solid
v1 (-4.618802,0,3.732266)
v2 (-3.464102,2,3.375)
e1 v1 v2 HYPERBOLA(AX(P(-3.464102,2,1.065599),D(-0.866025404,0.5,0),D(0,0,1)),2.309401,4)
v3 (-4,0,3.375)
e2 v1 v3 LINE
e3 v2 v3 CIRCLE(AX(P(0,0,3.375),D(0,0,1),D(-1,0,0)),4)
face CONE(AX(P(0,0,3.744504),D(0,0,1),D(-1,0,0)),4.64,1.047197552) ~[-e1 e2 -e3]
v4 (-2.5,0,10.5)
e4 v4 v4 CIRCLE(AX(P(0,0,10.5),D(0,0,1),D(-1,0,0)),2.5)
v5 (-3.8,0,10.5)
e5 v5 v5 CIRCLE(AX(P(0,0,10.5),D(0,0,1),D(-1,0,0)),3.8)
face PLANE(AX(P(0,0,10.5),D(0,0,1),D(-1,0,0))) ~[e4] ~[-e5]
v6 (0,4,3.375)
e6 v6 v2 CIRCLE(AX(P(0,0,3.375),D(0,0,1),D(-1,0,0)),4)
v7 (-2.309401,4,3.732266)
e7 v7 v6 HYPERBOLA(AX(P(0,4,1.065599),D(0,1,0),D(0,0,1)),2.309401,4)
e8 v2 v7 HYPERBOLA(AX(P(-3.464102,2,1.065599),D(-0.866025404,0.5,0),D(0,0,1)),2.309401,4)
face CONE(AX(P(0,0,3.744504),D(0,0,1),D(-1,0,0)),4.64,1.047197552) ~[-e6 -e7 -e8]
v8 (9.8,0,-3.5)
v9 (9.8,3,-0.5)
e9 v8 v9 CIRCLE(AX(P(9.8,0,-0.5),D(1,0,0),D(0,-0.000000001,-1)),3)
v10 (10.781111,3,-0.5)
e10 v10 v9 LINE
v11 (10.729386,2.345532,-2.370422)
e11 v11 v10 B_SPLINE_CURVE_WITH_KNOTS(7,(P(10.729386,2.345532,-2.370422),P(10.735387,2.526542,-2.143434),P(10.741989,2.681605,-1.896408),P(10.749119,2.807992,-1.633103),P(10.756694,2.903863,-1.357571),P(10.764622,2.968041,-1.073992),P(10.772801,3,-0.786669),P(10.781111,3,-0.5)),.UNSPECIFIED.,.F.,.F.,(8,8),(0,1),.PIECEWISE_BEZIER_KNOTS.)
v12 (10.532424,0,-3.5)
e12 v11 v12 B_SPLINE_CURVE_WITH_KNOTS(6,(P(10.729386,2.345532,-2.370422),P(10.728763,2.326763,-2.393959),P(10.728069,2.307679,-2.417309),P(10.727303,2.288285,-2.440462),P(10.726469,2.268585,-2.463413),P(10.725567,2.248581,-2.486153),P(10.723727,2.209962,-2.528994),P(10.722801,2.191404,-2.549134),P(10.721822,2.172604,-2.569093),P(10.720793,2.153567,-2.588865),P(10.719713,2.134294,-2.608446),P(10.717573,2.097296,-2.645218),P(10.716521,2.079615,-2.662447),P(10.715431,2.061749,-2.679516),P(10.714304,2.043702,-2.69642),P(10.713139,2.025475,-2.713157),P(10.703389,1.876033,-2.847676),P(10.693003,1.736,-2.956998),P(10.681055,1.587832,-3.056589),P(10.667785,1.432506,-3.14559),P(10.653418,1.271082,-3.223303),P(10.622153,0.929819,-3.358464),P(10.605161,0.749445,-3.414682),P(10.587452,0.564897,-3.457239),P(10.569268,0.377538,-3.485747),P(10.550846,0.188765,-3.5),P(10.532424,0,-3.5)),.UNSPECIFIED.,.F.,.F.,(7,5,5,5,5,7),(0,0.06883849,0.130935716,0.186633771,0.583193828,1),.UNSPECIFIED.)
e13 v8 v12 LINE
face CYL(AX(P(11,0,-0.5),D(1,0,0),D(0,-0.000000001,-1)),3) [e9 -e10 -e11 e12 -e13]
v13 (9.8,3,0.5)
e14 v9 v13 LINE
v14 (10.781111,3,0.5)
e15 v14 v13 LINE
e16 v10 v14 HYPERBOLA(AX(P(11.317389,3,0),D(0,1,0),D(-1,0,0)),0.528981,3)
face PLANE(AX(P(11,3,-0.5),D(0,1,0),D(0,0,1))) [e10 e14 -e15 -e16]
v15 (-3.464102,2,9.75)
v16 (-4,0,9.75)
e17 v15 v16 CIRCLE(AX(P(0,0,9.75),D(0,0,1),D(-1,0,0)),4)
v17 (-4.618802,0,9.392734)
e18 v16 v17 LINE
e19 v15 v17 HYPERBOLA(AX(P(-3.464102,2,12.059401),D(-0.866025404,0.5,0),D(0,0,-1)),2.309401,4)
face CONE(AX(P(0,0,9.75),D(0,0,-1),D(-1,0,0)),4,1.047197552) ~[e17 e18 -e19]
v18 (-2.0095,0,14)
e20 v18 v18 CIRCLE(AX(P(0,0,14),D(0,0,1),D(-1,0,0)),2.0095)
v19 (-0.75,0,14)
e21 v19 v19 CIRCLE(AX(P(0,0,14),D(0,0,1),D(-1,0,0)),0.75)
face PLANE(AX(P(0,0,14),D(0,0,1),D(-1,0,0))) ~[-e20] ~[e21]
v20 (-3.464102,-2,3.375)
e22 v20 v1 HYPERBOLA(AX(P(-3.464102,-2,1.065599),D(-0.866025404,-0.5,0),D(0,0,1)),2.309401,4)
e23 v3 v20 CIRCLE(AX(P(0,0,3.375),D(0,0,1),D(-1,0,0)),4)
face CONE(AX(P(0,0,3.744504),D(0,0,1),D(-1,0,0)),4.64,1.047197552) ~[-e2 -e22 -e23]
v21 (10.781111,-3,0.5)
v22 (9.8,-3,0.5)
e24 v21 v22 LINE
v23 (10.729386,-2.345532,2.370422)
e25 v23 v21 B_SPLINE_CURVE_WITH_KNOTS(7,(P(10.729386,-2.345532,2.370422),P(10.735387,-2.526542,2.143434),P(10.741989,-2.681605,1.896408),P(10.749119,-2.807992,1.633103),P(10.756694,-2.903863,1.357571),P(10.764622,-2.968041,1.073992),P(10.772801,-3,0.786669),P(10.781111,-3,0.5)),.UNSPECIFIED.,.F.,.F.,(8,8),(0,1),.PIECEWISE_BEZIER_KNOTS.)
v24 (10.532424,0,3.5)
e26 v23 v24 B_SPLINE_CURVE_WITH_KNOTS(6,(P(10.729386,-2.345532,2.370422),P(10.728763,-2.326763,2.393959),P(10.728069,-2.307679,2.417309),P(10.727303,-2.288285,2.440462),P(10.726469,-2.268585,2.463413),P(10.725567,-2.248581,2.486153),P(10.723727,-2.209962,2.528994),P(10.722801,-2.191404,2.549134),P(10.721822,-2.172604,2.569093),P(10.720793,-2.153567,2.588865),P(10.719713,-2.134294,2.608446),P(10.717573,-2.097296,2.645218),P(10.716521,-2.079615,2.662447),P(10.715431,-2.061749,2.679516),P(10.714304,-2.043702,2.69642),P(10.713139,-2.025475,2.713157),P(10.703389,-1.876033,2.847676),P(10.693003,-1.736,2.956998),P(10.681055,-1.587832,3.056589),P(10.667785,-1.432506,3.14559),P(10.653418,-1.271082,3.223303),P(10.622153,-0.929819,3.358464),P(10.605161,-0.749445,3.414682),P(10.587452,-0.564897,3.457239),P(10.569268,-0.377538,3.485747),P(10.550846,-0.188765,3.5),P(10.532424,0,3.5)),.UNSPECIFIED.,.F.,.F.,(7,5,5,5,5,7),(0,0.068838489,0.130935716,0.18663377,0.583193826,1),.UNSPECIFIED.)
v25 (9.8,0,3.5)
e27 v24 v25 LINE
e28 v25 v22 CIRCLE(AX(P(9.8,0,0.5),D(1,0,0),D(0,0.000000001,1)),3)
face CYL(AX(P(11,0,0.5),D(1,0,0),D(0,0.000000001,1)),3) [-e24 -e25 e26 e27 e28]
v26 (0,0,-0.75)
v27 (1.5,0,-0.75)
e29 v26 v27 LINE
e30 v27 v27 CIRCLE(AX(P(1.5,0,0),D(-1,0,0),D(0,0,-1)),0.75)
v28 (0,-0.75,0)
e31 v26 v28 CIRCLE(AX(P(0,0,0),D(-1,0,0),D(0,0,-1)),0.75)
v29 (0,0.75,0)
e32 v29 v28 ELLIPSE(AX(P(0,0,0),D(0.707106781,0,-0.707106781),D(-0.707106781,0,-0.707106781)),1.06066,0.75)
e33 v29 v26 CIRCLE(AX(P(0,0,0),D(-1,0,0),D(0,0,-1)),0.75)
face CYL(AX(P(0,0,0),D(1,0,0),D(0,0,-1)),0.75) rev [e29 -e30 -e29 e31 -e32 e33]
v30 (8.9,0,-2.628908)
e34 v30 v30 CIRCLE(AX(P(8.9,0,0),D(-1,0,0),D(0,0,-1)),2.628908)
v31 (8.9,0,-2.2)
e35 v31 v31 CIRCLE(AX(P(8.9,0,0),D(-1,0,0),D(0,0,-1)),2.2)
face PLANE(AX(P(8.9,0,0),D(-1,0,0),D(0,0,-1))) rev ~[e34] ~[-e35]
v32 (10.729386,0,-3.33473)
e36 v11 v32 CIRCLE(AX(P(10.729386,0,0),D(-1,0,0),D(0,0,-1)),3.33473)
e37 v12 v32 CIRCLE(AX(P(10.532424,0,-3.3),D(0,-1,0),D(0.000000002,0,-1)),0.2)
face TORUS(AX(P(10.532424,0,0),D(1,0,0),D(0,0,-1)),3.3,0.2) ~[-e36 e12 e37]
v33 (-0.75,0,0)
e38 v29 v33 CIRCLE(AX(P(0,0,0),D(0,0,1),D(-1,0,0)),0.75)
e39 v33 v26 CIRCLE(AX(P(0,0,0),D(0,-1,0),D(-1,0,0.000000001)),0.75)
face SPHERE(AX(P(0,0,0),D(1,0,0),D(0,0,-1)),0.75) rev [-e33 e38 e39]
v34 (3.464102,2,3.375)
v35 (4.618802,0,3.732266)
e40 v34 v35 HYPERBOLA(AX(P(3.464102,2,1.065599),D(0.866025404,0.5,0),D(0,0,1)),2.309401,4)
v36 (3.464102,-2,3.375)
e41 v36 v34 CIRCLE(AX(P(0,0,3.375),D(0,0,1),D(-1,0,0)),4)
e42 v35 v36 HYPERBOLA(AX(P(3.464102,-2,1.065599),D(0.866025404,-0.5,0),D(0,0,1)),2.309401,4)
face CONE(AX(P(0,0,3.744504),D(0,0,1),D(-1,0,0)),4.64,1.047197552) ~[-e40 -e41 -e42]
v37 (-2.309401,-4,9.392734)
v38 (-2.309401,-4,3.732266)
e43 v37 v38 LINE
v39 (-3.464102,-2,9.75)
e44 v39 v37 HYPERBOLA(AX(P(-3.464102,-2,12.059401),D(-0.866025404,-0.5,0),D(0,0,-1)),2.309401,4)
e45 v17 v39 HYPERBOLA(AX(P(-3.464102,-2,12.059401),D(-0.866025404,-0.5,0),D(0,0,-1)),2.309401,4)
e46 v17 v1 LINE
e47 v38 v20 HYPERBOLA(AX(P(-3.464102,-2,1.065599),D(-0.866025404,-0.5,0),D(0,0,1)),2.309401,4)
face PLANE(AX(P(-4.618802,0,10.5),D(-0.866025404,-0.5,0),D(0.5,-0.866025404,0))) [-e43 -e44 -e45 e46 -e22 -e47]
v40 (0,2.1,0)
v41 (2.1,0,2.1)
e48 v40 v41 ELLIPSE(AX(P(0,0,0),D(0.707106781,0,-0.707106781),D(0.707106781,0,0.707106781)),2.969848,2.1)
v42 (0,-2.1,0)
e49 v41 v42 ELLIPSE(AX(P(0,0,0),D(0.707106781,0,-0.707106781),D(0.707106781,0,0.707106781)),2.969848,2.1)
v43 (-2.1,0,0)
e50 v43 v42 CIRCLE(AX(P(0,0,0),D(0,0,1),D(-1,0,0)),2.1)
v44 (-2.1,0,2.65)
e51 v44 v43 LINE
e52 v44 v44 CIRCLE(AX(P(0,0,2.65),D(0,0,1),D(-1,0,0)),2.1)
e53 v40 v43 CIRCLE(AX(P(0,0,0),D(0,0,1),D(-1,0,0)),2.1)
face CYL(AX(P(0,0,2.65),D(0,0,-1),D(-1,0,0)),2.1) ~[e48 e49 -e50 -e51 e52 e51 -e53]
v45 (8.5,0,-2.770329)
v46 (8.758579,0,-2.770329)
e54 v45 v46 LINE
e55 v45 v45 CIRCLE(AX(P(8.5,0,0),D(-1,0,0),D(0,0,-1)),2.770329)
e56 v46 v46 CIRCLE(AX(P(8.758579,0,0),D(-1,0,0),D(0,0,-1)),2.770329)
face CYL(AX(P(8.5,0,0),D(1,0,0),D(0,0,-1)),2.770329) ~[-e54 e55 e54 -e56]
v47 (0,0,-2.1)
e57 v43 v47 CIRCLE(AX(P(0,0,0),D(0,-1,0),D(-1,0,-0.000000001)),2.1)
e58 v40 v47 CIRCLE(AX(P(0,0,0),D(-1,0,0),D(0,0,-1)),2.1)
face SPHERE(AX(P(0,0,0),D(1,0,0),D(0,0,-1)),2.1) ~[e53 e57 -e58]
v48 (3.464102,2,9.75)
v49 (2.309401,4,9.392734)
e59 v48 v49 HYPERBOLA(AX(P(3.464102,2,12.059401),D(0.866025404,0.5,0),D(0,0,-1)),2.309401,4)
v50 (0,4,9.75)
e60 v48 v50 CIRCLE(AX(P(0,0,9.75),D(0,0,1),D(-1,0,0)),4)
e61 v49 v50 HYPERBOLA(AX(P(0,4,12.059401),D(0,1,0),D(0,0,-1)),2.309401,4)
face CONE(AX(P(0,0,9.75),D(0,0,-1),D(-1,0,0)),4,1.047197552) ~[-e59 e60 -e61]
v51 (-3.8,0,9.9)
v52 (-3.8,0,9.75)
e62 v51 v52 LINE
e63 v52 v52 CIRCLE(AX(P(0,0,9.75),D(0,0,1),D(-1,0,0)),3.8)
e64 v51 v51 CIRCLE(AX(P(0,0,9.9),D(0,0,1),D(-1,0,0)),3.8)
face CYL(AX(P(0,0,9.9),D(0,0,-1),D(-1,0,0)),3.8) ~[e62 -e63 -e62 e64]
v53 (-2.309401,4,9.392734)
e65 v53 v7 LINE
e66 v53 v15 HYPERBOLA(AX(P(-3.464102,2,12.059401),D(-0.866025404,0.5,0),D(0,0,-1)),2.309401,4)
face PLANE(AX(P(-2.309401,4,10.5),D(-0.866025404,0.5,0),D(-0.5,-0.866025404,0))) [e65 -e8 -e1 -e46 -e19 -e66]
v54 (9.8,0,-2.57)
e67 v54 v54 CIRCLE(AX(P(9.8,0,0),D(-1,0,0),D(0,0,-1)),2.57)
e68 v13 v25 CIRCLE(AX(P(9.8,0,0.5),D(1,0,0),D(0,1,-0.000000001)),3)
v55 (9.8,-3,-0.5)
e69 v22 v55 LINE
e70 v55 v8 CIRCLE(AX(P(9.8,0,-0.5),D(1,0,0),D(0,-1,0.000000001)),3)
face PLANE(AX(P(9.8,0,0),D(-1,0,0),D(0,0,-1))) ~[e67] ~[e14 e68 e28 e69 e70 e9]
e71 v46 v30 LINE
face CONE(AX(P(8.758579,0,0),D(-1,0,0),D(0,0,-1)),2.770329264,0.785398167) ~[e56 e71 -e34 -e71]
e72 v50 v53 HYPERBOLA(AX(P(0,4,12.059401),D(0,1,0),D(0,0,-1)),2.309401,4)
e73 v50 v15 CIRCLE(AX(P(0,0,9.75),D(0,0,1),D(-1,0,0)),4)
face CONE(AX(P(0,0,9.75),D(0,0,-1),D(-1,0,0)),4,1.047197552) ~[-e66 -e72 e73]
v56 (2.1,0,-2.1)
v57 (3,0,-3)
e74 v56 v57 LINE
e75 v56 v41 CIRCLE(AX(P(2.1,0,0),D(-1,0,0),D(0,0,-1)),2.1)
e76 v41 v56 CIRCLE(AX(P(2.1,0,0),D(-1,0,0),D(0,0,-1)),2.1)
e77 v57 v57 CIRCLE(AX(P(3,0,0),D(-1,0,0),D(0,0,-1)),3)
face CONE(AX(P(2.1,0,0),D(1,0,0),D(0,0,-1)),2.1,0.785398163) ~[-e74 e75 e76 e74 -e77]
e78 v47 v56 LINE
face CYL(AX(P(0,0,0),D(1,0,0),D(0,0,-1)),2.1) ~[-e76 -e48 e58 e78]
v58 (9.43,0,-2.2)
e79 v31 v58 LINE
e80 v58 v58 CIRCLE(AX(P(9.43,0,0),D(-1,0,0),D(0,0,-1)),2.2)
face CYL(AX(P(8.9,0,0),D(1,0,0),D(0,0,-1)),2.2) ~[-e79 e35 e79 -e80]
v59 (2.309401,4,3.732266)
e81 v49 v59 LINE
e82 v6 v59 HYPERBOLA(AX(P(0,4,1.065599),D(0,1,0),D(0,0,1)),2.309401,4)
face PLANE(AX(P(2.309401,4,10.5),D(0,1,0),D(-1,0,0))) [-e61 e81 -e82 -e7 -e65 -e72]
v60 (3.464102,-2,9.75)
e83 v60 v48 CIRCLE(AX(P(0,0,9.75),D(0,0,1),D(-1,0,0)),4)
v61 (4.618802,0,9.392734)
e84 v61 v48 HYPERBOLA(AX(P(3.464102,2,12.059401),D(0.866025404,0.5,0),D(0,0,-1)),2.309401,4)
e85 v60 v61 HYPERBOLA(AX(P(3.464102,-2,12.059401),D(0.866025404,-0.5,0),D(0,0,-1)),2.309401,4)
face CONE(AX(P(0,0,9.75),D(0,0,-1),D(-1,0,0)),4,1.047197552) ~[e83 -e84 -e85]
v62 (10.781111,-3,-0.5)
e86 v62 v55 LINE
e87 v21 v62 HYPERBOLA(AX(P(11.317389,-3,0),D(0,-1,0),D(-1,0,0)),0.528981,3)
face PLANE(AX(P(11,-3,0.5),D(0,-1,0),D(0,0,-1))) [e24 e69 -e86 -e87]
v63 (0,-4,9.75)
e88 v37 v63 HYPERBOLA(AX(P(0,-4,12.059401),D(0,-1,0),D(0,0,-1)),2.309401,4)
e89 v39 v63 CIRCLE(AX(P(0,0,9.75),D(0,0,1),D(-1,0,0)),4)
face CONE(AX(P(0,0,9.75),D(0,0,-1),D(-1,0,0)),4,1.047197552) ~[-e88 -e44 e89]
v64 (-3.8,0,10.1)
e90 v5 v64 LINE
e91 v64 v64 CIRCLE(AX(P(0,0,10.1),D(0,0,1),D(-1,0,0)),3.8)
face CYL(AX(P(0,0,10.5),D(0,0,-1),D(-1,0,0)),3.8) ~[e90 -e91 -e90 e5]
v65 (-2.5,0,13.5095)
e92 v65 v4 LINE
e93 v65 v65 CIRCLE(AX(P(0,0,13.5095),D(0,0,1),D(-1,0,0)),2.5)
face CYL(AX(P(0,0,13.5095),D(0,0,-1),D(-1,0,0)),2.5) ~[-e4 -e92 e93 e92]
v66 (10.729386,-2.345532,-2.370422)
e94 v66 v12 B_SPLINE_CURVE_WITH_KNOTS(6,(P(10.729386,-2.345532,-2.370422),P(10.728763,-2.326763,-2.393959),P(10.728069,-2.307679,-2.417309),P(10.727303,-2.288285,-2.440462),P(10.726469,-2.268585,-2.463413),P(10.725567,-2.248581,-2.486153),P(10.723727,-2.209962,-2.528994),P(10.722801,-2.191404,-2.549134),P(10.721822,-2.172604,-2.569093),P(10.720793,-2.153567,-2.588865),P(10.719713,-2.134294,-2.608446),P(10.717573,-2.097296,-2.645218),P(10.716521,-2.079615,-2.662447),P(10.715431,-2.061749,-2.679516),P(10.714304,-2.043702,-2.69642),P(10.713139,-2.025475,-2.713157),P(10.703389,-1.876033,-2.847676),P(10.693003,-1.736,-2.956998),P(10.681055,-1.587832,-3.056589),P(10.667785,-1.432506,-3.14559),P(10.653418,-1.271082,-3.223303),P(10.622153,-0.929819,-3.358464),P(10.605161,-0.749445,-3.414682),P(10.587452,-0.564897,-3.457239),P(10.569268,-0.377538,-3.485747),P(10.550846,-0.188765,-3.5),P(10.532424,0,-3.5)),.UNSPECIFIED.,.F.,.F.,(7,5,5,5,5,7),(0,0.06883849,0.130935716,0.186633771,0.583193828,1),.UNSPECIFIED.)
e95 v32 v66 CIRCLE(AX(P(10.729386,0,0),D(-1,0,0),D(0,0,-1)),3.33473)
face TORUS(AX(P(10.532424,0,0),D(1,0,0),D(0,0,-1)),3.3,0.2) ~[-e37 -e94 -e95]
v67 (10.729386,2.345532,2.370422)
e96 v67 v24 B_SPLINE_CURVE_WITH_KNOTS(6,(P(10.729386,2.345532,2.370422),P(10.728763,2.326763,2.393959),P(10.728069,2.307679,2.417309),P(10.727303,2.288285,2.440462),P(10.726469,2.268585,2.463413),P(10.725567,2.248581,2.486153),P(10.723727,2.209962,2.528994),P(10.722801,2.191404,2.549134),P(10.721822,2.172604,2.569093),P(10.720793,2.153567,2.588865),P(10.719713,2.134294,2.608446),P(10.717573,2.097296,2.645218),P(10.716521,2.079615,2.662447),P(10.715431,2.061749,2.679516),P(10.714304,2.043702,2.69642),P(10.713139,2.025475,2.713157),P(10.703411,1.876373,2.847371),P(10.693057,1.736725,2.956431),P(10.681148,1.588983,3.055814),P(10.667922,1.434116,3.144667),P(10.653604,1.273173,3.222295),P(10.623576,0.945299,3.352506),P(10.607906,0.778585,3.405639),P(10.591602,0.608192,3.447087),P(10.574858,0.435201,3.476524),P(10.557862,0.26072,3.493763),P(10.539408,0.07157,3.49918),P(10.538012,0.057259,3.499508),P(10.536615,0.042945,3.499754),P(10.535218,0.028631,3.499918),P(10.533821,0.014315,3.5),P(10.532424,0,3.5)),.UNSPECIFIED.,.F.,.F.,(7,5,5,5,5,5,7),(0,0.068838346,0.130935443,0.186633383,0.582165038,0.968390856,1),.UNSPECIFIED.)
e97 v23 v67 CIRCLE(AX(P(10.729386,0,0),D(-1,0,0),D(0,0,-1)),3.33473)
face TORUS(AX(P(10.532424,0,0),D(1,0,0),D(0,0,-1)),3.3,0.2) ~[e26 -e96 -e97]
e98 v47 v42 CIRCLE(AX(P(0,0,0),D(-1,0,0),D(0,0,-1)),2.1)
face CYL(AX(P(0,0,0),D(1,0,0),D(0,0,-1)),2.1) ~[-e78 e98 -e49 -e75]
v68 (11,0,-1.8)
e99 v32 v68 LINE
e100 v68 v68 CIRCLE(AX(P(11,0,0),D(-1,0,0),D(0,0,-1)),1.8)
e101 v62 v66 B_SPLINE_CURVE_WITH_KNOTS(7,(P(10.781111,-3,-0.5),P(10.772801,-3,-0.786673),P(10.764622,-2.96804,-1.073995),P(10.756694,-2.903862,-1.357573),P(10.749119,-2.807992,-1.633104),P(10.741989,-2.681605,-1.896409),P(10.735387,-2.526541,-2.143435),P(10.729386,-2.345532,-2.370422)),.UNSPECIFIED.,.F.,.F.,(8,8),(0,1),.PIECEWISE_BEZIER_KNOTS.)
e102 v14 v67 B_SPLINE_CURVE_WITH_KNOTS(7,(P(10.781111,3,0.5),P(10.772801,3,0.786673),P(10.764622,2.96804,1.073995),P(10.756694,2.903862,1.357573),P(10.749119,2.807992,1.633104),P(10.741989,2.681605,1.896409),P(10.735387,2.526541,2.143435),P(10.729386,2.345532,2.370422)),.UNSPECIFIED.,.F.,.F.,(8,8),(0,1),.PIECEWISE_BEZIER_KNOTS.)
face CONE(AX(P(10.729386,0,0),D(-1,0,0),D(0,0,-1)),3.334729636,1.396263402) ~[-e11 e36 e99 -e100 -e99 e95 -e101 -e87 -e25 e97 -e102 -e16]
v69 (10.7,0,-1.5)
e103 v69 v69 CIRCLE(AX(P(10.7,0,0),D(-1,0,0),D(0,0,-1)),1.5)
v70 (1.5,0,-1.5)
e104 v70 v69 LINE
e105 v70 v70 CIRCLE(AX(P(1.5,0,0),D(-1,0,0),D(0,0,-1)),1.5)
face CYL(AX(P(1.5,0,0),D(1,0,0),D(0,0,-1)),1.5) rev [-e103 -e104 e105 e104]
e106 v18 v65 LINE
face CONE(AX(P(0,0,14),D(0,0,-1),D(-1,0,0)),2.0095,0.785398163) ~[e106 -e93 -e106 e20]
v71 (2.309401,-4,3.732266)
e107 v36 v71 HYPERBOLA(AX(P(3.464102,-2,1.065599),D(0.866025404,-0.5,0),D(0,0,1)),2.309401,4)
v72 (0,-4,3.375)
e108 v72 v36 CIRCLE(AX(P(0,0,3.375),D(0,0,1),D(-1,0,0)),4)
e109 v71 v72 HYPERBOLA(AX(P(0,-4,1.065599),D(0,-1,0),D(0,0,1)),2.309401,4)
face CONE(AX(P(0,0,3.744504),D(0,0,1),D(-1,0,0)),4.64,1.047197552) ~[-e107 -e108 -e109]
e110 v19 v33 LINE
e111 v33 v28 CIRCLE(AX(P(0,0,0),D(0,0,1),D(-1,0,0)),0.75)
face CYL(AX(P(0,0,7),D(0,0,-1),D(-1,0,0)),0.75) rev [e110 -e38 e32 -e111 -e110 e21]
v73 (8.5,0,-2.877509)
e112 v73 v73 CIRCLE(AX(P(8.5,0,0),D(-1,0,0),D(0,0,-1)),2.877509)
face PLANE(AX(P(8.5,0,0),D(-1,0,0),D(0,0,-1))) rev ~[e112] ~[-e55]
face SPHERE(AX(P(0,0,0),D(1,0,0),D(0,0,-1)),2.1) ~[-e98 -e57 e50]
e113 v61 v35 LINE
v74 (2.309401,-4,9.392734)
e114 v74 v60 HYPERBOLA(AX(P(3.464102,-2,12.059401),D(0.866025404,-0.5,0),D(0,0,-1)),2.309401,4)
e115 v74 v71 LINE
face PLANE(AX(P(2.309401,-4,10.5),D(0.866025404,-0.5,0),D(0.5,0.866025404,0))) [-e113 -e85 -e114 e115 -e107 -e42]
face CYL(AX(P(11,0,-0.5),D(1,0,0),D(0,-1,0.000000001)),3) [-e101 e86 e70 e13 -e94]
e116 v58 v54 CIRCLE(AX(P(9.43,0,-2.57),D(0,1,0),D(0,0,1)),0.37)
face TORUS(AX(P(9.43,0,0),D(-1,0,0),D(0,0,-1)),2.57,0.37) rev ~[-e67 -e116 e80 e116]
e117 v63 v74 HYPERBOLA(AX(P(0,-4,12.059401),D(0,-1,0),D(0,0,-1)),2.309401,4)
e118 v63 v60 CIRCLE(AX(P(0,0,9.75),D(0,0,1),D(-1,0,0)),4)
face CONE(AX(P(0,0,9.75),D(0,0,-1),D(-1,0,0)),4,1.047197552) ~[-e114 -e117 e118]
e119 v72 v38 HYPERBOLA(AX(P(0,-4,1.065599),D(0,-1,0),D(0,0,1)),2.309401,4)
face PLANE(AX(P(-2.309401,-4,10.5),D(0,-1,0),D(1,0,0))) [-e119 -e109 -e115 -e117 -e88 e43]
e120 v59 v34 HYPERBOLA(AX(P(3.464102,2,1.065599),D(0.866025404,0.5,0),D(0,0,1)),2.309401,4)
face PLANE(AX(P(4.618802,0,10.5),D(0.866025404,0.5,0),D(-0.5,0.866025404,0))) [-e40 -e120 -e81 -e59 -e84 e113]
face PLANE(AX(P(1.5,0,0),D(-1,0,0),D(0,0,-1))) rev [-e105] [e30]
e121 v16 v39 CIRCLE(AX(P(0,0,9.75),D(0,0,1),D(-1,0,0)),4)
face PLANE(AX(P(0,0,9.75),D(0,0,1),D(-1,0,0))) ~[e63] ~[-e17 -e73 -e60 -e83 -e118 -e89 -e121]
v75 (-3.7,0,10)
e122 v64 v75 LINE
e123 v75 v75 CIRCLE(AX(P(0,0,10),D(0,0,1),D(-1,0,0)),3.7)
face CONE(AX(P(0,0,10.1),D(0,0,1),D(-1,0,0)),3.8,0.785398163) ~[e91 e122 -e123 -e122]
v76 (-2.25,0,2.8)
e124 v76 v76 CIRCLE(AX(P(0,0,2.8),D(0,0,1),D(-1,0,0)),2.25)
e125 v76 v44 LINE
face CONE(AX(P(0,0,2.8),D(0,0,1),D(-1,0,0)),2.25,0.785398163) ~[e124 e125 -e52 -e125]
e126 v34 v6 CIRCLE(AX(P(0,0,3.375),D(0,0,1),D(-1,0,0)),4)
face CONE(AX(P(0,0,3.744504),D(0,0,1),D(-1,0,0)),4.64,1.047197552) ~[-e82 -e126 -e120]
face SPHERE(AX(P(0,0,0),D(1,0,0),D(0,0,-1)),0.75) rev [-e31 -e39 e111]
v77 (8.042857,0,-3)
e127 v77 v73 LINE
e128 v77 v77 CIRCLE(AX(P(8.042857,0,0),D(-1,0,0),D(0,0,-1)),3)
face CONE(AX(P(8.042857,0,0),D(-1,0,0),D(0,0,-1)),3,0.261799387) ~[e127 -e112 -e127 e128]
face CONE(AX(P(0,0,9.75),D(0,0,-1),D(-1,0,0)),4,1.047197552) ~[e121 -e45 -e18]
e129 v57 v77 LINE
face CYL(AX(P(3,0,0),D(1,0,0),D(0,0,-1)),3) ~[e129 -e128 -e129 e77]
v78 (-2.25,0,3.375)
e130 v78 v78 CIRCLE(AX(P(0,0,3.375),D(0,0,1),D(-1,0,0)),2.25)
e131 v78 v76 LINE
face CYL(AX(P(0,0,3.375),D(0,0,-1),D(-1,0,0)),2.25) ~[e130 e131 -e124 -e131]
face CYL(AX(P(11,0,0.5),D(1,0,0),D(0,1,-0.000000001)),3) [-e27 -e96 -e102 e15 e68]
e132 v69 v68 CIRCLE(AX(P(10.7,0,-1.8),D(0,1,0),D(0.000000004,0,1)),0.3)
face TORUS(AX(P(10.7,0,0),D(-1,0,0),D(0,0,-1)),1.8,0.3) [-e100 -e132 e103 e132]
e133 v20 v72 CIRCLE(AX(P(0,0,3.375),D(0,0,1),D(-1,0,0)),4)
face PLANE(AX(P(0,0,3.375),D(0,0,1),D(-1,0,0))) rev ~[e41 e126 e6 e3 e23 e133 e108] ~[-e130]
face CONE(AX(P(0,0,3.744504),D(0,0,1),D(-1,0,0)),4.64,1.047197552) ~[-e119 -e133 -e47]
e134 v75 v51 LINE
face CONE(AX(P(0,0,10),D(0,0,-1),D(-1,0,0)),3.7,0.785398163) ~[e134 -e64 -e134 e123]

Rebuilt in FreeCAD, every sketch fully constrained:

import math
import FreeCAD as App
import Part
import Sketcher
Q = App.Units.Quantity

doc = App.newDocument("Part")
body = doc.addObject("PartDesign::Body", "Body")

sketch1 = doc.addObject("Sketcher::SketchObject", "Sketch")
body.addObject(sketch1)
sketch1.AttachmentSupport = (doc.XY_Plane, [""])
sketch1.MapMode = "FlatFace"
sketch1.addGeometry(Part.LineSegment(App.Vector(2.1, 2.1, 0), App.Vector(0, 2.1, 0)), False)
sketch1.addGeometry(Part.ArcOfCircle(Part.Circle(App.Vector(0, 0, 0), App.Vector(0, 0, 1), 2.1), math.radians(90), math.radians(180)), False)
sketch1.addGeometry(Part.LineSegment(App.Vector(-2.1, 0, 0), App.Vector(11, 0, 0)), False)
sketch1.addGeometry(Part.LineSegment(App.Vector(11, 0, 0), App.Vector(11, 1.8, 0)), False)
sketch1.addGeometry(Part.LineSegment(App.Vector(11, 1.8, 0), App.Vector(10.73, 3.33, 0)), False)
sketch1.addGeometry(Part.ArcOfCircle(Part.Circle(App.Vector(10.53, 3.3, 0), App.Vector(0, 0, 1), 0.2), math.radians(10), math.radians(90)), False)
sketch1.addGeometry(Part.LineSegment(App.Vector(10.53, 3.5, 0), App.Vector(9.8, 3.5, 0)), False)
sketch1.addGeometry(Part.LineSegment(App.Vector(9.8, 3.5, 0), App.Vector(9.8, 2.57, 0)), False)
sketch1.addGeometry(Part.ArcOfCircle(Part.Circle(App.Vector(9.43, 2.57, 0), App.Vector(0, 0, 1), 0.37), math.radians(-90), math.radians(0)), False)
sketch1.addGeometry(Part.LineSegment(App.Vector(9.43, 2.2, 0), App.Vector(8.9, 2.2, 0)), False)
sketch1.addGeometry(Part.LineSegment(App.Vector(8.9, 2.2, 0), App.Vector(8.9, 2.63, 0)), False)
sketch1.addGeometry(Part.LineSegment(App.Vector(8.9, 2.63, 0), App.Vector(8.76, 2.77, 0)), False)
sketch1.addGeometry(Part.LineSegment(App.Vector(8.76, 2.77, 0), App.Vector(8.5, 2.77, 0)), False)
sketch1.addGeometry(Part.LineSegment(App.Vector(8.5, 2.77, 0), App.Vector(8.5, 2.88, 0)), False)
sketch1.addGeometry(Part.LineSegment(App.Vector(8.5, 2.88, 0), App.Vector(8.04, 3, 0)), False)
sketch1.addGeometry(Part.LineSegment(App.Vector(8.04, 3, 0), App.Vector(3, 3, 0)), False)
sketch1.addGeometry(Part.LineSegment(App.Vector(3, 3, 0), App.Vector(2.1, 2.1, 0)), False)
sketch1.addConstraint(Sketcher.Constraint("Tangent", 0, 2, 1, 1))
sketch1.addConstraint(Sketcher.Constraint("Coincident", 1, 2, 2, 1))
sketch1.addConstraint(Sketcher.Constraint("Coincident", 2, 2, 3, 1))
sketch1.addConstraint(Sketcher.Constraint("Coincident", 3, 2, 4, 1))
sketch1.addConstraint(Sketcher.Constraint("Tangent", 4, 2, 5, 1))
sketch1.addConstraint(Sketcher.Constraint("Tangent", 5, 2, 6, 1))
sketch1.addConstraint(Sketcher.Constraint("Coincident", 6, 2, 7, 1))
sketch1.addConstraint(Sketcher.Constraint("Tangent", 7, 2, 8, 2))
sketch1.addConstraint(Sketcher.Constraint("Tangent", 8, 1, 9, 1))
sketch1.addConstraint(Sketcher.Constraint("Coincident", 9, 2, 10, 1))
sketch1.addConstraint(Sketcher.Constraint("Coincident", 10, 2, 11, 1))
sketch1.addConstraint(Sketcher.Constraint("Coincident", 11, 2, 12, 1))
sketch1.addConstraint(Sketcher.Constraint("Coincident", 12, 2, 13, 1))
sketch1.addConstraint(Sketcher.Constraint("Coincident", 13, 2, 14, 1))
sketch1.addConstraint(Sketcher.Constraint("Coincident", 14, 2, 15, 1))
sketch1.addConstraint(Sketcher.Constraint("Coincident", 15, 2, 16, 1))
sketch1.addConstraint(Sketcher.Constraint("Coincident", 16, 2, 0, 1))
sketch1.addConstraint(Sketcher.Constraint("Horizontal", 0))
sketch1.addConstraint(Sketcher.Constraint("Horizontal", 2))
sketch1.addConstraint(Sketcher.Constraint("Vertical", 3))
sketch1.addConstraint(Sketcher.Constraint("Horizontal", 6))
sketch1.addConstraint(Sketcher.Constraint("Vertical", 7))
sketch1.addConstraint(Sketcher.Constraint("Horizontal", 9))
sketch1.addConstraint(Sketcher.Constraint("Vertical", 10))
sketch1.addConstraint(Sketcher.Constraint("Horizontal", 12))
sketch1.addConstraint(Sketcher.Constraint("Vertical", 13))
sketch1.addConstraint(Sketcher.Constraint("Horizontal", 15))
sketch1.addConstraint(Sketcher.Constraint("Coincident", 1, 3, -1, 1))
sketch1.addConstraint(Sketcher.Constraint("PointOnObject", 1, 2, -1))
sketch1.addConstraint(Sketcher.Constraint("Perpendicular", 11, 16))
sketch1.addConstraint(Sketcher.Constraint("Radius", 1, Q("2.1 mm")))
sketch1.addConstraint(Sketcher.Constraint("Radius", 5, Q("0.2 mm")))
sketch1.addConstraint(Sketcher.Constraint("Angle", 4, Q("100 deg")))
sketch1.addConstraint(Sketcher.Constraint("Angle", 11, Q("135 deg")))
sketch1.addConstraint(Sketcher.Constraint("Angle", 14, Q("165 deg")))
sketch1.addConstraint(Sketcher.Constraint("Radius", 8, Q("0.37 mm")))
sketch1.addConstraint(Sketcher.Constraint("DistanceX", 0, 2, 0, 1, Q("2.1 mm")))
sketch1.addConstraint(Sketcher.Constraint("DistanceX", 2, 1, 2, 2, Q("13.1 mm")))
sketch1.addConstraint(Sketcher.Constraint("DistanceY", 3, 1, 3, 2, Q("1.8 mm")))
sketch1.addConstraint(Sketcher.Constraint("DistanceY", -1, 1, 14, 2, Q("3 mm")))
sketch1.addConstraint(Sketcher.Constraint("Distance", 11, Q("0.2 mm")))
sketch1.addConstraint(Sketcher.Constraint("DistanceX", 9, 2, 9, 1, Q("0.53 mm")))
sketch1.addConstraint(Sketcher.Constraint("DistanceY", 7, 2, 7, 1, Q("0.93 mm")))
sketch1.addConstraint(Sketcher.Constraint("DistanceY", -1, 1, 5, 3, Q("3.3 mm")))
sketch1.addConstraint(Sketcher.Constraint("DistanceX", -1, 1, 6, 2, Q("9.8 mm")))
sketch1.addConstraint(Sketcher.Constraint("DistanceX", -1, 1, 12, 2, Q("8.5 mm")))
sketch1.addConstraint(Sketcher.Constraint("DistanceY", 13, 1, 13, 2, Q("0.10718 mm")))
sketch1.addConstraint(Sketcher.Constraint("Distance", 14, Q("0.473269 mm")))
revolution = doc.addObject("PartDesign::Revolution", "Revolution")
body.addObject(revolution)
revolution.Profile = sketch1
revolution.ReferenceAxis = (sketch1, ["H_Axis"])
revolution.Angle = 360

sketch2 = doc.addObject("Sketcher::SketchObject", "Sketch001")
body.addObject(sketch2)
sketch2.AttachmentSupport = (doc.YZ_Plane, [""])
sketch2.MapMode = "FlatFace"
sketch2.addGeometry(Part.LineSegment(App.Vector(3.8, 10.5, 0), App.Vector(0, 10.5, 0)), False)
sketch2.addGeometry(Part.LineSegment(App.Vector(0, 10.5, 0), App.Vector(0, 0, 0)), False)
sketch2.addGeometry(Part.LineSegment(App.Vector(0, 0, 0), App.Vector(2.1, 0, 0)), False)
sketch2.addGeometry(Part.LineSegment(App.Vector(2.1, 0, 0), App.Vector(2.1, 2.65, 0)), False)
sketch2.addGeometry(Part.LineSegment(App.Vector(2.1, 2.65, 0), App.Vector(2.25, 2.8, 0)), False)
sketch2.addGeometry(Part.LineSegment(App.Vector(2.25, 2.8, 0), App.Vector(2.25, 3.38, 0)), False)
sketch2.addGeometry(Part.LineSegment(App.Vector(2.25, 3.38, 0), App.Vector(4, 3.38, 0)), False)
sketch2.addGeometry(Part.LineSegment(App.Vector(4, 3.38, 0), App.Vector(4.64, 3.74, 0)), False)
sketch2.addGeometry(Part.LineSegment(App.Vector(4.64, 3.74, 0), App.Vector(4.64, 9.38, 0)), False)
sketch2.addGeometry(Part.LineSegment(App.Vector(4.64, 9.38, 0), App.Vector(4, 9.75, 0)), False)
sketch2.addGeometry(Part.LineSegment(App.Vector(4, 9.75, 0), App.Vector(3.8, 9.75, 0)), False)
sketch2.addGeometry(Part.LineSegment(App.Vector(3.8, 9.75, 0), App.Vector(3.8, 9.9, 0)), False)
sketch2.addGeometry(Part.LineSegment(App.Vector(3.8, 9.9, 0), App.Vector(3.7, 10, 0)), False)
sketch2.addGeometry(Part.LineSegment(App.Vector(3.7, 10, 0), App.Vector(3.8, 10.1, 0)), False)
sketch2.addGeometry(Part.LineSegment(App.Vector(3.8, 10.1, 0), App.Vector(3.8, 10.5, 0)), False)
sketch2.addConstraint(Sketcher.Constraint("Coincident", 0, 2, 1, 1))
sketch2.addConstraint(Sketcher.Constraint("Coincident", 1, 2, 2, 1))
sketch2.addConstraint(Sketcher.Constraint("Coincident", 2, 2, 3, 1))
sketch2.addConstraint(Sketcher.Constraint("Coincident", 3, 2, 4, 1))
sketch2.addConstraint(Sketcher.Constraint("Coincident", 4, 2, 5, 1))
sketch2.addConstraint(Sketcher.Constraint("Coincident", 5, 2, 6, 1))
sketch2.addConstraint(Sketcher.Constraint("Coincident", 6, 2, 7, 1))
sketch2.addConstraint(Sketcher.Constraint("Coincident", 7, 2, 8, 1))
sketch2.addConstraint(Sketcher.Constraint("Coincident", 8, 2, 9, 1))
sketch2.addConstraint(Sketcher.Constraint("Coincident", 9, 2, 10, 1))
sketch2.addConstraint(Sketcher.Constraint("Coincident", 10, 2, 11, 1))
sketch2.addConstraint(Sketcher.Constraint("Coincident", 11, 2, 12, 1))
sketch2.addConstraint(Sketcher.Constraint("Coincident", 12, 2, 13, 1))
sketch2.addConstraint(Sketcher.Constraint("Coincident", 13, 2, 14, 1))
sketch2.addConstraint(Sketcher.Constraint("Coincident", 14, 2, 0, 1))
sketch2.addConstraint(Sketcher.Constraint("Horizontal", 0))
sketch2.addConstraint(Sketcher.Constraint("Vertical", 1))
sketch2.addConstraint(Sketcher.Constraint("Horizontal", 2))
sketch2.addConstraint(Sketcher.Constraint("Vertical", 3))
sketch2.addConstraint(Sketcher.Constraint("Vertical", 5))
sketch2.addConstraint(Sketcher.Constraint("Horizontal", 6))
sketch2.addConstraint(Sketcher.Constraint("Vertical", 8))
sketch2.addConstraint(Sketcher.Constraint("Horizontal", 10))
sketch2.addConstraint(Sketcher.Constraint("Vertical", 11))
sketch2.addConstraint(Sketcher.Constraint("Vertical", 14))
sketch2.addConstraint(Sketcher.Constraint("Coincident", 1, 2, -1, 1))
sketch2.addConstraint(Sketcher.Constraint("Perpendicular", 4, 12))
sketch2.addConstraint(Sketcher.Constraint("Perpendicular", 12, 13))
sketch2.addConstraint(Sketcher.Constraint("Vertical", 6, 2, 9, 2))
sketch2.addConstraint(Sketcher.Constraint("Vertical", 11, 2, 13, 2))
sketch2.addConstraint(Sketcher.Constraint("Equal", 7, 9))
sketch2.addConstraint(Sketcher.Constraint("Equal", 12, 13))
sketch2.addConstraint(Sketcher.Constraint("Angle", 7, Q("30 deg")))
sketch2.addConstraint(Sketcher.Constraint("DistanceX", 0, 2, 0, 1, Q("3.8 mm")))
sketch2.addConstraint(Sketcher.Constraint("DistanceX", 2, 1, 2, 2, Q("2.1 mm")))
sketch2.addConstraint(Sketcher.Constraint("DistanceX", 10, 2, 10, 1, Q("0.2 mm")))
sketch2.addConstraint(Sketcher.Constraint("DistanceY", 1, 2, 1, 1, Q("10.5 mm")))
sketch2.addConstraint(Sketcher.Constraint("DistanceY", 14, 1, 14, 2, Q("0.4 mm")))
sketch2.addConstraint(Sketcher.Constraint("DistanceY", -1, 1, 12, 2, Q("10 mm")))
sketch2.addConstraint(Sketcher.Constraint("DistanceX", 6, 1, 6, 2, Q("1.75 mm")))
sketch2.addConstraint(Sketcher.Constraint("DistanceY", 3, 1, 3, 2, Q("2.65 mm")))
sketch2.addConstraint(Sketcher.Constraint("DistanceY", 11, 1, 11, 2, Q("0.15 mm")))
sketch2.addConstraint(Sketcher.Constraint("DistanceY", 5, 1, 5, 2, Q("0.575 mm")))
sketch2.addConstraint(Sketcher.Constraint("DistanceX", -1, 1, 7, 2, Q("4.64 mm")))
revolution2 = doc.addObject("PartDesign::Revolution", "Revolution001")
body.addObject(revolution2)
revolution2.Profile = sketch2
revolution2.ReferenceAxis = (sketch2, ["V_Axis"])
revolution2.Angle = 360

sketch3 = doc.addObject("Sketcher::SketchObject", "Sketch002")
body.addObject(sketch3)
sketch3.AttachmentSupport = (doc.YZ_Plane, [""])
sketch3.MapMode = "FlatFace"
sketch3.addGeometry(Part.LineSegment(App.Vector(2, 14, 0), App.Vector(0, 14, 0)), False)
sketch3.addGeometry(Part.LineSegment(App.Vector(0, 14, 0), App.Vector(0, 10.5, 0)), False)
sketch3.addGeometry(Part.LineSegment(App.Vector(0, 10.5, 0), App.Vector(2.5, 10.5, 0)), False)
sketch3.addGeometry(Part.LineSegment(App.Vector(2.5, 10.5, 0), App.Vector(2.5, 13.5, 0)), False)
sketch3.addGeometry(Part.LineSegment(App.Vector(2.5, 13.5, 0), App.Vector(2, 14, 0)), False)
sketch3.addConstraint(Sketcher.Constraint("Coincident", 0, 2, 1, 1))
sketch3.addConstraint(Sketcher.Constraint("Coincident", 1, 2, 2, 1))
sketch3.addConstraint(Sketcher.Constraint("Coincident", 2, 2, 3, 1))
sketch3.addConstraint(Sketcher.Constraint("Coincident", 3, 2, 4, 1))
sketch3.addConstraint(Sketcher.Constraint("Coincident", 4, 2, 0, 1))
sketch3.addConstraint(Sketcher.Constraint("Horizontal", 0))
sketch3.addConstraint(Sketcher.Constraint("Vertical", 1))
sketch3.addConstraint(Sketcher.Constraint("Horizontal", 2))
sketch3.addConstraint(Sketcher.Constraint("Vertical", 3))
sketch3.addConstraint(Sketcher.Constraint("PointOnObject", 0, 2, -2))
sketch3.addConstraint(Sketcher.Constraint("Angle", 4, Q("135 deg")))
sketch3.addConstraint(Sketcher.Constraint("DistanceX", 2, 1, 2, 2, Q("2.5 mm")))
sketch3.addConstraint(Sketcher.Constraint("DistanceY", 1, 2, 1, 1, Q("3.5 mm")))
sketch3.addConstraint(Sketcher.Constraint("DistanceY", -1, 1, 0, 2, Q("14 mm")))
sketch3.addConstraint(Sketcher.Constraint("DistanceX", 0, 2, 0, 1, Q("2.0095 mm")))
revolution3 = doc.addObject("PartDesign::Revolution", "Revolution002")
body.addObject(revolution3)
revolution3.Profile = sketch3
revolution3.ReferenceAxis = (sketch3, ["V_Axis"])
revolution3.Angle = 360

sketch4 = doc.addObject("Sketcher::SketchObject", "Sketch003")
body.addObject(sketch4)
sketch4.AttachmentSupport = (doc.YZ_Plane, [""])
sketch4.MapMode = "FlatFace"
sketch4.AttachmentOffset = App.Placement(App.Vector(0, 0, 11), App.Rotation())
sketch4.addGeometry(Part.LineSegment(App.Vector(2.4, 4.2, 0), App.Vector(-2.4, 4.2, 0)), False)
sketch4.addGeometry(Part.LineSegment(App.Vector(-2.4, 4.2, 0), App.Vector(-4.8, 0, 0)), False)
sketch4.addGeometry(Part.LineSegment(App.Vector(-4.8, 0, 0), App.Vector(-2.4, -4.2, 0)), False)
sketch4.addGeometry(Part.LineSegment(App.Vector(-2.4, -4.2, 0), App.Vector(2.4, -4.2, 0)), False)
sketch4.addGeometry(Part.LineSegment(App.Vector(2.4, -4.2, 0), App.Vector(4.8, 0, 0)), False)
sketch4.addGeometry(Part.LineSegment(App.Vector(4.8, 0, 0), App.Vector(2.4, 4.2, 0)), False)
sketch4.addGeometry(Part.LineSegment(App.Vector(-3, -0.5, 0), App.Vector(-3, 0.5, 0)), False)
sketch4.addGeometry(Part.ArcOfCircle(Part.Circle(App.Vector(0, 0.5, 0), App.Vector(0, 0, 1), 3), math.radians(90), math.radians(180)), False)
sketch4.addGeometry(Part.ArcOfCircle(Part.Circle(App.Vector(0, 0.5, 0), App.Vector(0, 0, 1), 3), math.radians(0), math.radians(90)), False)
sketch4.addGeometry(Part.LineSegment(App.Vector(3, 0.5, 0), App.Vector(3, -0.5, 0)), False)
sketch4.addGeometry(Part.ArcOfCircle(Part.Circle(App.Vector(0, -0.5, 0), App.Vector(0, 0, 1), 3), math.radians(-90), math.radians(0)), False)
sketch4.addGeometry(Part.ArcOfCircle(Part.Circle(App.Vector(0, -0.5, 0), App.Vector(0, 0, 1), 3), math.radians(180), math.radians(270)), False)
sketch4.addConstraint(Sketcher.Constraint("Coincident", 0, 2, 1, 1))
sketch4.addConstraint(Sketcher.Constraint("Coincident", 1, 2, 2, 1))
sketch4.addConstraint(Sketcher.Constraint("Coincident", 2, 2, 3, 1))
sketch4.addConstraint(Sketcher.Constraint("Coincident", 3, 2, 4, 1))
sketch4.addConstraint(Sketcher.Constraint("Coincident", 4, 2, 5, 1))
sketch4.addConstraint(Sketcher.Constraint("Coincident", 5, 2, 0, 1))
sketch4.addConstraint(Sketcher.Constraint("Tangent", 6, 2, 7, 2))
sketch4.addConstraint(Sketcher.Constraint("Tangent", 7, 1, 8, 2))
sketch4.addConstraint(Sketcher.Constraint("Tangent", 8, 1, 9, 1))
sketch4.addConstraint(Sketcher.Constraint("Tangent", 9, 2, 10, 2))
sketch4.addConstraint(Sketcher.Constraint("Tangent", 10, 1, 11, 2))
sketch4.addConstraint(Sketcher.Constraint("Tangent", 11, 1, 6, 1))
sketch4.addConstraint(Sketcher.Constraint("Horizontal", 0))
sketch4.addConstraint(Sketcher.Constraint("Horizontal", 3))
sketch4.addConstraint(Sketcher.Constraint("Vertical", 6))
sketch4.addConstraint(Sketcher.Constraint("Vertical", 9))
sketch4.addConstraint(Sketcher.Constraint("Equal", 7, 8))
sketch4.addConstraint(Sketcher.Constraint("Equal", 8, 10))
sketch4.addConstraint(Sketcher.Constraint("Symmetric", 7, 3, 10, 3, -1, 1))
sketch4.addConstraint(Sketcher.Constraint("Symmetric", 0, 2, 3, 2, -1, 1))
sketch4.addConstraint(Sketcher.Constraint("Symmetric", 1, 2, 4, 2, -1, 1))
sketch4.addConstraint(Sketcher.Constraint("PointOnObject", 1, 2, -1))
sketch4.addConstraint(Sketcher.Constraint("PointOnObject", 7, 1, -2))
sketch4.addConstraint(Sketcher.Constraint("PointOnObject", 10, 1, -2))
sketch4.addConstraint(Sketcher.Constraint("Parallel", 2, 5))
sketch4.addConstraint(Sketcher.Constraint("Vertical", 0, 2, 2, 2))
sketch4.addConstraint(Sketcher.Constraint("Radius", 7, Q("3 mm")))
sketch4.addConstraint(Sketcher.Constraint("DistanceY", 6, 1, 6, 2, Q("1 mm")))
sketch4.addConstraint(Sketcher.Constraint("Angle", 1, Q("-120 deg")))
sketch4.addConstraint(Sketcher.Constraint("DistanceY", -1, 1, 0, 2, Q("4.2 mm")))
sketch4.addConstraint(Sketcher.Constraint("DistanceX", 0, 2, 0, 1, Q("4.849742 mm")))
pocket1 = doc.addObject("PartDesign::Pocket", "Pocket")
body.addObject(pocket1)
pocket1.Profile = sketch4
pocket1.Length = 1.2

sketch5 = doc.addObject("Sketcher::SketchObject", "Sketch004")
body.addObject(sketch5)
sketch5.AttachmentSupport = (doc.YZ_Plane, [""])
sketch5.MapMode = "FlatFace"
sketch5.addGeometry(Part.LineSegment(App.Vector(0.8, 14, 0), App.Vector(0, 14, 0)), False)
sketch5.addGeometry(Part.LineSegment(App.Vector(0, 14, 0), App.Vector(0, 0, 0)), False)
sketch5.addGeometry(Part.LineSegment(App.Vector(0, 0, 0), App.Vector(0.8, 0, 0)), False)
sketch5.addGeometry(Part.LineSegment(App.Vector(0.8, 0, 0), App.Vector(0.8, 14, 0)), False)
sketch5.addConstraint(Sketcher.Constraint("Coincident", 0, 2, 1, 1))
sketch5.addConstraint(Sketcher.Constraint("Coincident", 1, 2, 2, 1))
sketch5.addConstraint(Sketcher.Constraint("Coincident", 2, 2, 3, 1))
sketch5.addConstraint(Sketcher.Constraint("Coincident", 3, 2, 0, 1))
sketch5.addConstraint(Sketcher.Constraint("Horizontal", 0))
sketch5.addConstraint(Sketcher.Constraint("Vertical", 1))
sketch5.addConstraint(Sketcher.Constraint("Horizontal", 2))
sketch5.addConstraint(Sketcher.Constraint("Vertical", 3))
sketch5.addConstraint(Sketcher.Constraint("Coincident", 1, 2, -1, 1))
sketch5.addConstraint(Sketcher.Constraint("DistanceY", 1, 2, 1, 1, Q("14 mm")))
sketch5.addConstraint(Sketcher.Constraint("DistanceX", 0, 2, 0, 1, Q("0.75 mm")))
groove = doc.addObject("PartDesign::Groove", "Groove")
body.addObject(groove)
groove.Profile = sketch5
groove.ReferenceAxis = (sketch5, ["V_Axis"])
groove.Angle = 360

sketch6 = doc.addObject("Sketcher::SketchObject", "Sketch005")
body.addObject(sketch6)
sketch6.AttachmentSupport = (doc.XZ_Plane, [""])
sketch6.MapMode = "FlatFace"
sketch6.addGeometry(Part.LineSegment(App.Vector(1.5, -0.75, 0), App.Vector(0, -0.75, 0)), False)
sketch6.addGeometry(Part.ArcOfCircle(Part.Circle(App.Vector(0, 0, 0), App.Vector(0, 0, 1), 0.75), math.radians(180), math.radians(270)), False)
sketch6.addGeometry(Part.LineSegment(App.Vector(-0.75, 0, 0), App.Vector(11, 0, 0)), False)
sketch6.addGeometry(Part.LineSegment(App.Vector(11, 0, 0), App.Vector(11, -1.8, 0)), False)
sketch6.addGeometry(Part.ArcOfCircle(Part.Circle(App.Vector(10.7, -1.8, 0), App.Vector(0, 0, 1), 0.3), math.radians(0), math.radians(90)), False)
sketch6.addGeometry(Part.LineSegment(App.Vector(10.7, -1.5, 0), App.Vector(1.5, -1.5, 0)), False)
sketch6.addGeometry(Part.LineSegment(App.Vector(1.5, -1.5, 0), App.Vector(1.5, -0.75, 0)), False)
sketch6.addConstraint(Sketcher.Constraint("Tangent", 0, 2, 1, 2))
sketch6.addConstraint(Sketcher.Constraint("Coincident", 1, 1, 2, 1))
sketch6.addConstraint(Sketcher.Constraint("Coincident", 2, 2, 3, 1))
sketch6.addConstraint(Sketcher.Constraint("Tangent", 3, 2, 4, 1))
sketch6.addConstraint(Sketcher.Constraint("Tangent", 4, 2, 5, 1))
sketch6.addConstraint(Sketcher.Constraint("Coincident", 5, 2, 6, 1))
sketch6.addConstraint(Sketcher.Constraint("Coincident", 6, 2, 0, 1))
sketch6.addConstraint(Sketcher.Constraint("Horizontal", 0))
sketch6.addConstraint(Sketcher.Constraint("Horizontal", 2))
sketch6.addConstraint(Sketcher.Constraint("Vertical", 3))
sketch6.addConstraint(Sketcher.Constraint("Horizontal", 5))
sketch6.addConstraint(Sketcher.Constraint("Vertical", 6))
sketch6.addConstraint(Sketcher.Constraint("Coincident", 1, 3, -1, 1))
sketch6.addConstraint(Sketcher.Constraint("PointOnObject", 1, 1, -1))
sketch6.addConstraint(Sketcher.Constraint("Radius", 4, Q("0.3 mm")))
sketch6.addConstraint(Sketcher.Constraint("Radius", 1, Q("0.75 mm")))
sketch6.addConstraint(Sketcher.Constraint("DistanceX", 0, 2, 0, 1, Q("1.5 mm")))
sketch6.addConstraint(Sketcher.Constraint("DistanceX", 5, 2, 5, 1, Q("9.2 mm")))
sketch6.addConstraint(Sketcher.Constraint("DistanceY", 3, 2, 3, 1, Q("1.8 mm")))
groove2 = doc.addObject("PartDesign::Groove", "Groove001")
body.addObject(groove2)
groove2.Profile = sketch6
groove2.ReferenceAxis = (sketch6, ["H_Axis"])
groove2.Angle = 360

sketch7 = doc.addObject("Sketcher::SketchObject", "Sketch006")
body.addObject(sketch7)
sketch7.AttachmentSupport = (doc.XY_Plane, [""])
sketch7.MapMode = "FlatFace"
sketch7.AttachmentOffset = App.Placement(App.Vector(0, 0, 10.5), App.Rotation())
sketch7.addGeometry(Part.LineSegment(App.Vector(-8, 8, 0), App.Vector(-8, -8, 0)), False)
sketch7.addGeometry(Part.LineSegment(App.Vector(-8, -8, 0), App.Vector(8, -8, 0)), False)
sketch7.addGeometry(Part.LineSegment(App.Vector(8, -8, 0), App.Vector(8, 8, 0)), False)
sketch7.addGeometry(Part.LineSegment(App.Vector(8, 8, 0), App.Vector(-8, 8, 0)), False)
sketch7.addGeometry(Part.LineSegment(App.Vector(-2.3, -4, 0), App.Vector(-4.6, 0, 0)), False)
sketch7.addGeometry(Part.LineSegment(App.Vector(-4.6, 0, 0), App.Vector(-2.3, 4, 0)), False)
sketch7.addGeometry(Part.LineSegment(App.Vector(-2.3, 4, 0), App.Vector(2.3, 4, 0)), False)
sketch7.addGeometry(Part.LineSegment(App.Vector(2.3, 4, 0), App.Vector(4.6, 0, 0)), False)
sketch7.addGeometry(Part.LineSegment(App.Vector(4.6, 0, 0), App.Vector(2.3, -4, 0)), False)
sketch7.addGeometry(Part.LineSegment(App.Vector(2.3, -4, 0), App.Vector(-2.3, -4, 0)), False)
sketch7.addConstraint(Sketcher.Constraint("Coincident", 0, 2, 1, 1))
sketch7.addConstraint(Sketcher.Constraint("Coincident", 1, 2, 2, 1))
sketch7.addConstraint(Sketcher.Constraint("Coincident", 2, 2, 3, 1))
sketch7.addConstraint(Sketcher.Constraint("Coincident", 3, 2, 0, 1))
sketch7.addConstraint(Sketcher.Constraint("Coincident", 4, 2, 5, 1))
sketch7.addConstraint(Sketcher.Constraint("Coincident", 5, 2, 6, 1))
sketch7.addConstraint(Sketcher.Constraint("Coincident", 6, 2, 7, 1))
sketch7.addConstraint(Sketcher.Constraint("Coincident", 7, 2, 8, 1))
sketch7.addConstraint(Sketcher.Constraint("Coincident", 8, 2, 9, 1))
sketch7.addConstraint(Sketcher.Constraint("Coincident", 9, 2, 4, 1))
sketch7.addConstraint(Sketcher.Constraint("Vertical", 0))
sketch7.addConstraint(Sketcher.Constraint("Horizontal", 1))
sketch7.addConstraint(Sketcher.Constraint("Vertical", 2))
sketch7.addConstraint(Sketcher.Constraint("Horizontal", 3))
sketch7.addConstraint(Sketcher.Constraint("Horizontal", 6))
sketch7.addConstraint(Sketcher.Constraint("Horizontal", 9))
sketch7.addConstraint(Sketcher.Constraint("Symmetric", 0, 2, 2, 2, -1, 1))
sketch7.addConstraint(Sketcher.Constraint("Symmetric", 4, 2, 7, 2, -1, 1))
sketch7.addConstraint(Sketcher.Constraint("Symmetric", 5, 2, 8, 2, -1, 1))
sketch7.addConstraint(Sketcher.Constraint("PointOnObject", 4, 2, -1))
sketch7.addConstraint(Sketcher.Constraint("Parallel", 4, 7))
sketch7.addConstraint(Sketcher.Constraint("Vertical", 6, 2, 8, 2))
sketch7.addConstraint(Sketcher.Constraint("Equal", 3, 0))
sketch7.addConstraint(Sketcher.Constraint("DistanceX", 1, 1, 1, 2, Q("16 mm")))
sketch7.addConstraint(Sketcher.Constraint("Angle", 4, Q("120 deg")))
sketch7.addConstraint(Sketcher.Constraint("DistanceY", -1, 1, 5, 2, Q("4 mm")))
sketch7.addConstraint(Sketcher.Constraint("DistanceX", 5, 2, -1, 1, Q("2.309401 mm")))
pocket2 = doc.addObject("PartDesign::Pocket", "Pocket001")
body.addObject(pocket2)
pocket2.Profile = sketch7
pocket2.Length = 7.166667

doc.recompute()
